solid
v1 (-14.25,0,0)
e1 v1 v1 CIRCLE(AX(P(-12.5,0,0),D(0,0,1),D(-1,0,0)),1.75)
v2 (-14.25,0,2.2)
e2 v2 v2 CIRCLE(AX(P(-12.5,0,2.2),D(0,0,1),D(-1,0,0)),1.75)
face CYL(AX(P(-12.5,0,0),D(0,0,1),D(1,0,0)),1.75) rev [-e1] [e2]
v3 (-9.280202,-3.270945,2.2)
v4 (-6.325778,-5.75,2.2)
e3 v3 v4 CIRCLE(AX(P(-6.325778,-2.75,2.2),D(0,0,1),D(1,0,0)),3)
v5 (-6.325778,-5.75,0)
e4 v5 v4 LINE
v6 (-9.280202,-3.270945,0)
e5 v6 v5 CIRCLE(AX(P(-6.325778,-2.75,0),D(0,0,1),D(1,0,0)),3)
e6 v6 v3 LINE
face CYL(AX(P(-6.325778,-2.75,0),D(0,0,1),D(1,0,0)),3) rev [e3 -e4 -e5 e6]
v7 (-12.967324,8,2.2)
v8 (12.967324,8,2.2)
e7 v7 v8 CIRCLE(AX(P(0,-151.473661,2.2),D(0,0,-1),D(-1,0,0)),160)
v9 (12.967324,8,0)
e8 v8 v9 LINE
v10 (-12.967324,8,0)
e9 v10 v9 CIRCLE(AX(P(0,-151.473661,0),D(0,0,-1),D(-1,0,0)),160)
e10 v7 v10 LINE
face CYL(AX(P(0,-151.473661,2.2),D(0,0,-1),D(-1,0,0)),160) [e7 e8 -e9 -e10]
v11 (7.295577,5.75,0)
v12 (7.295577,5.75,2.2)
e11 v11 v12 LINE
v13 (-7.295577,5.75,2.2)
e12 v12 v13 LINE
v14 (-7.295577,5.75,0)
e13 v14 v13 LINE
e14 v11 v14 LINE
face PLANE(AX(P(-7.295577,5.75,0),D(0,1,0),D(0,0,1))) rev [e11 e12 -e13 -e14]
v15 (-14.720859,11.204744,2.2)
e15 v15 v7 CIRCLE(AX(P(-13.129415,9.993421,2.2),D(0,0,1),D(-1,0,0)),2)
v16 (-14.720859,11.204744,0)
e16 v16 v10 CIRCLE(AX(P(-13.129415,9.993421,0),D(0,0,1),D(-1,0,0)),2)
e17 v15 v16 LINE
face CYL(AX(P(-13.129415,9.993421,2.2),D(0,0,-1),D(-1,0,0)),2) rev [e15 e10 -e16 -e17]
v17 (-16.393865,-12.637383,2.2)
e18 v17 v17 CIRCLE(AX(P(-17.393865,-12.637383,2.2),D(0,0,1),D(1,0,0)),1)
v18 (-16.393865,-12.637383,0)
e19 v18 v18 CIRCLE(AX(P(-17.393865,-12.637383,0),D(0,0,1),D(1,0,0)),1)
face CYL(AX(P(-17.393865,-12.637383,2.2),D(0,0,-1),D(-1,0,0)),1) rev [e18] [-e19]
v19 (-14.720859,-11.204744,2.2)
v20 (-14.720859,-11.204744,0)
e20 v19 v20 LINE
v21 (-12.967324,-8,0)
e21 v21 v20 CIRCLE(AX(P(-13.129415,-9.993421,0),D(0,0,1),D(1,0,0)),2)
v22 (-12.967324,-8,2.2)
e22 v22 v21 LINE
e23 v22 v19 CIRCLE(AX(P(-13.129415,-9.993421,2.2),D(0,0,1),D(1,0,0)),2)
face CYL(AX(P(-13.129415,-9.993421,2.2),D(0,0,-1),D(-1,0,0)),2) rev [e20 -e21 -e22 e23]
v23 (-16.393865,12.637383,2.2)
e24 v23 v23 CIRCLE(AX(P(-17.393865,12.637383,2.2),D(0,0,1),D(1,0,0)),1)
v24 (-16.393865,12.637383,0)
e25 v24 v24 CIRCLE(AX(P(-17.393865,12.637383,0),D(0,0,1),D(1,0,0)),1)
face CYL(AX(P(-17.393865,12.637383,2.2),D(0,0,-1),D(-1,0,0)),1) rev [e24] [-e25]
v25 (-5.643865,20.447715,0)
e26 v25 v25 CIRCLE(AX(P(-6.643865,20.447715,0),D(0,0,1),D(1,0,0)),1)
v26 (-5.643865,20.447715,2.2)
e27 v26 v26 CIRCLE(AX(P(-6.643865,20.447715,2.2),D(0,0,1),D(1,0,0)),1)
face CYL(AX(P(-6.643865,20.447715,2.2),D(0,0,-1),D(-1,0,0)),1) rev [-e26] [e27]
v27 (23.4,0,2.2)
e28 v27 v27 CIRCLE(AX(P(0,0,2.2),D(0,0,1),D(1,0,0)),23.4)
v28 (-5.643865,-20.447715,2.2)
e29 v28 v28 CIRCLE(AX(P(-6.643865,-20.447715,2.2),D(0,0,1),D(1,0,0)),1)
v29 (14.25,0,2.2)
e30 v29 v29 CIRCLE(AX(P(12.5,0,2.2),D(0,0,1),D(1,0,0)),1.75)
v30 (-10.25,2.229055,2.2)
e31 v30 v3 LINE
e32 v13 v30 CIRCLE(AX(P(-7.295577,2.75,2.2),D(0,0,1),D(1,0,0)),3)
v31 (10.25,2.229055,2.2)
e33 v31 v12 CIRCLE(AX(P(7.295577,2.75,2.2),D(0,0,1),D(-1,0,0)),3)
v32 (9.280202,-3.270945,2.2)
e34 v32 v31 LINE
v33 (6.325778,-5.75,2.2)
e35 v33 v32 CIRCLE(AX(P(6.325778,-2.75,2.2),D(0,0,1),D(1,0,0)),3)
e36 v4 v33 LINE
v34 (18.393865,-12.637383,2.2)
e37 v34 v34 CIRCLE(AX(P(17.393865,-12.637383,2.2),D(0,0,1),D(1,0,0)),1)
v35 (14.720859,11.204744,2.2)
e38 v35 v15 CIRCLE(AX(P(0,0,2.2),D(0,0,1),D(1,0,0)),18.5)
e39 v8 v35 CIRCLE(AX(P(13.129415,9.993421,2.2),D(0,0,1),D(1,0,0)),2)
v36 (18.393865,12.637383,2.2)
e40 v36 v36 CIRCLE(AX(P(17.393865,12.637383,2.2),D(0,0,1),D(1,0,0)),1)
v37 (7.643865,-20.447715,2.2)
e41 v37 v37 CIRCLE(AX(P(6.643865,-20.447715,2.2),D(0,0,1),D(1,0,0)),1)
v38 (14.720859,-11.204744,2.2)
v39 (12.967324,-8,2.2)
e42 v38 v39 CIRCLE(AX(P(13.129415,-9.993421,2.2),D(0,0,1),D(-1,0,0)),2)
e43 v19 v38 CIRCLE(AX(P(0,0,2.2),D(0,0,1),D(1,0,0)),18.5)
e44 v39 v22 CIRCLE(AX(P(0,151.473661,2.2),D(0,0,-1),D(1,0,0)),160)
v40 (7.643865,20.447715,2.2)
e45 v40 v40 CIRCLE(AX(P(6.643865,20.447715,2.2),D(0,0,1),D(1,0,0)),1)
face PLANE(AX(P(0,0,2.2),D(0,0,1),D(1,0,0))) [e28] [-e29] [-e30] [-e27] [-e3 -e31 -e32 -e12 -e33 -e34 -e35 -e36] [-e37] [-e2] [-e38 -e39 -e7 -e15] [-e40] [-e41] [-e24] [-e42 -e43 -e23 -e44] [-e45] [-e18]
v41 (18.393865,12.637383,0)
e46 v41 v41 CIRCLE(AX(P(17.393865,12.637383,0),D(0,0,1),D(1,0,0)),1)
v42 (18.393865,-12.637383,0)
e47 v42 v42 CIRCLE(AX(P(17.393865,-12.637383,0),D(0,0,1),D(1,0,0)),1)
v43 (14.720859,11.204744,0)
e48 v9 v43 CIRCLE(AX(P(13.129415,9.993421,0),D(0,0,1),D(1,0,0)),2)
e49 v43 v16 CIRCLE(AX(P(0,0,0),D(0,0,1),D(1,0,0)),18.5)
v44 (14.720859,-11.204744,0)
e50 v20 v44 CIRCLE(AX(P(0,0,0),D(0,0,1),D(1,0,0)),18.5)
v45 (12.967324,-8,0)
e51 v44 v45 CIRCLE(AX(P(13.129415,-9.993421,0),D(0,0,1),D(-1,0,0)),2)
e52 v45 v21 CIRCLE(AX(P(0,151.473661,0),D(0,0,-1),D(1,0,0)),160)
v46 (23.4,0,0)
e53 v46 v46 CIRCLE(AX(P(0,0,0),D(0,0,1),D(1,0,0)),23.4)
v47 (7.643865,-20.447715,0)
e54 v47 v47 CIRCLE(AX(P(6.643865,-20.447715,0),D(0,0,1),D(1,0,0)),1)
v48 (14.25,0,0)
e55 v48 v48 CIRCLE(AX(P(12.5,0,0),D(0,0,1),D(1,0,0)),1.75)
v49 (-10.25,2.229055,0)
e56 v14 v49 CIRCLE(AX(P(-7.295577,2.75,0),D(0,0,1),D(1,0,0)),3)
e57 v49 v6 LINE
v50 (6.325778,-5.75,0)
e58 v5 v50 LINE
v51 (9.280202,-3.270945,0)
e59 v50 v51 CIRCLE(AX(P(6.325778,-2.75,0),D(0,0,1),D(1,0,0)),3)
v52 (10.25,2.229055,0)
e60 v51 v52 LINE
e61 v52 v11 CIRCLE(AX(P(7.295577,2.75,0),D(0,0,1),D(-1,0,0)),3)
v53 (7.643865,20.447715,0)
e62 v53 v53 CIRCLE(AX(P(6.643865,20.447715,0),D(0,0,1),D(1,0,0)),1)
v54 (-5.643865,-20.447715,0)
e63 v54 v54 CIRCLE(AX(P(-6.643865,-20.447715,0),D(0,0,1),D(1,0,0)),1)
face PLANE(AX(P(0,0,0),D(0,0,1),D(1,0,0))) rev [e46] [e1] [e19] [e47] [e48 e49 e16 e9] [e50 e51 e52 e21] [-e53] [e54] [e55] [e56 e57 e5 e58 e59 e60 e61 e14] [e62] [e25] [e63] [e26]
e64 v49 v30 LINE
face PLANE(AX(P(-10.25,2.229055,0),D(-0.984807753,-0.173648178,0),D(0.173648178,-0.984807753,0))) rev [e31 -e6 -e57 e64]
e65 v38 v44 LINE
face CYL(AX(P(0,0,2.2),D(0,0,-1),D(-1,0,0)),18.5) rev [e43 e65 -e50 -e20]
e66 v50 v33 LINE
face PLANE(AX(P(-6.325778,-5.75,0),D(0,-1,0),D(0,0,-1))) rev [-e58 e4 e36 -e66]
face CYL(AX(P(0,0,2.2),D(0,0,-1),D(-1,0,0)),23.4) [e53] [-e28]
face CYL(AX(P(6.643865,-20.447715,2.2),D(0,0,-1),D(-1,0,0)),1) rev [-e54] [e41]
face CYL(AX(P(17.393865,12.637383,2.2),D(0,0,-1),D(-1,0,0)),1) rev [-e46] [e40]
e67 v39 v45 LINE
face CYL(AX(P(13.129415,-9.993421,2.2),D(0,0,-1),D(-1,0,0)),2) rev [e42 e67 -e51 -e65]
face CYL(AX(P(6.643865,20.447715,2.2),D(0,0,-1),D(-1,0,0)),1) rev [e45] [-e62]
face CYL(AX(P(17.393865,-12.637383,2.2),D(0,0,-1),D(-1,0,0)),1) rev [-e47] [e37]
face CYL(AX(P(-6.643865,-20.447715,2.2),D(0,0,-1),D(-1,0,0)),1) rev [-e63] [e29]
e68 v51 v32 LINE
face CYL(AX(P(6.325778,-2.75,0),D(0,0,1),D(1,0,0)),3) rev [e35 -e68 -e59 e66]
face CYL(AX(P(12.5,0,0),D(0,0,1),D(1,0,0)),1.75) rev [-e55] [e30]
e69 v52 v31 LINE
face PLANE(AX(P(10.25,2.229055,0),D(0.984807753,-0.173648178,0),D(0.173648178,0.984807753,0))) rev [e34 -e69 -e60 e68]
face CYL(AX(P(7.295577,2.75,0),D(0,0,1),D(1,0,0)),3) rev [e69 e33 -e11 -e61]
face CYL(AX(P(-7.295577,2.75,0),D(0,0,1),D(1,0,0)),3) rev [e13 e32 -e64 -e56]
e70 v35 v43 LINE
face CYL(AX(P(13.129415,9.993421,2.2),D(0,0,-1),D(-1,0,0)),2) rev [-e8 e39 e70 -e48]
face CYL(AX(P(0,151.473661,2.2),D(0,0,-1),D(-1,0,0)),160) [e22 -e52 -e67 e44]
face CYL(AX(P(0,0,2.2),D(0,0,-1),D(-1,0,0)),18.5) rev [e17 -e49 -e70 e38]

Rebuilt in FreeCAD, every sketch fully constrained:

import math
import FreeCAD as App
import Part
import Sketcher

V = App.Vector
Q = App.Units.Quantity

doc = App.newDocument("Part")
body = doc.addObject("PartDesign::Body", "Body")

# Sketch on XY plane
sketch1 = doc.addObject("Sketcher::SketchObject", "Sketch")
body.addObject(sketch1)
sketch1.AttachmentSupport = (doc.XY_Plane, [""])
sketch1.MapMode = "FlatFace"
sketch1.addGeometry([
    Part.Circle(V(0, 0, 0), V(0, 0, 1), 23.4),  # 0
    Part.Circle(V(-17.4, -12.6, 0), V(0, 0, 1), 1),  # 1
    Part.Circle(V(-6.6, -20.4, 0), V(0, 0, 1), 1),  # 2
    Part.Circle(V(6.6, -20.4, 0), V(0, 0, 1), 1),  # 3
    Part.ArcOfCircle(Part.Circle(V(0, 0, 0), V(0, 0, 1), 18.5), math.radians(-143), math.radians(-37)),  # 4
    Part.ArcOfCircle(Part.Circle(V(-13.1, -10, 0), V(0, 0, 1), 2), math.radians(85), math.radians(217)),  # 5
    Part.ArcOfCircle(Part.Circle(V(0, 151.5, 0), V(0, 0, 1), 160), math.radians(-94.65), math.radians(-85.35)),  # 6
    Part.ArcOfCircle(Part.Circle(V(13.1, -10, 0), V(0, 0, 1), 2), math.radians(-37), math.radians(95)),  # 7
    Part.Circle(V(17.4, -12.6, 0), V(0, 0, 1), 1),  # 8
    Part.Circle(V(-17.4, 12.6, 0), V(0, 0, 1), 1),  # 9
    Part.Circle(V(-6.6, 20.4, 0), V(0, 0, 1), 1),  # 10
    Part.ArcOfCircle(Part.Circle(V(0, 0, 0), V(0, 0, 1), 18.5), math.radians(37), math.radians(143)),  # 11
    Part.ArcOfCircle(Part.Circle(V(13.1, 10, 0), V(0, 0, 1), 2), math.radians(-95), math.radians(37)),  # 12
    Part.ArcOfCircle(Part.Circle(V(0, -151.5, 0), V(0, 0, 1), 160), math.radians(85.35), math.radians(94.65)),  # 13
    Part.ArcOfCircle(Part.Circle(V(-13.1, 10, 0), V(0, 0, 1), 2), math.radians(143), math.radians(275)),  # 14
    Part.Circle(V(6.6, 20.4, 0), V(0, 0, 1), 1),  # 15
    Part.Circle(V(17.4, 12.6, 0), V(0, 0, 1), 1),  # 16
], False)
sketch1.addConstraint([
    Sketcher.Constraint("Tangent", 4, 1, 5, 2),
    Sketcher.Constraint("Tangent", 5, 1, 6, 1),
    Sketcher.Constraint("Tangent", 6, 2, 7, 2),
    Sketcher.Constraint("Tangent", 7, 1, 4, 2),
    Sketcher.Constraint("Tangent", 11, 1, 12, 2),
    Sketcher.Constraint("Tangent", 12, 1, 13, 1),
    Sketcher.Constraint("Tangent", 13, 2, 14, 2),
    Sketcher.Constraint("Tangent", 14, 1, 11, 2),
    Sketcher.Constraint("Coincident", 0, 3, -1, 1),
    Sketcher.Constraint("Coincident", 4, 3, -1, 1),
    Sketcher.Constraint("Coincident", 11, 3, -1, 1),
    Sketcher.Constraint("Equal", 1, 2),
    Sketcher.Constraint("Equal", 2, 3),
    Sketcher.Constraint("Equal", 5, 7),
    Sketcher.Constraint("Equal", 3, 8),
    Sketcher.Constraint("Equal", 8, 9),
    Sketcher.Constraint("Equal", 9, 10),
    Sketcher.Constraint("Equal", 4, 11),
    Sketcher.Constraint("Equal", 7, 12),
    Sketcher.Constraint("Equal", 6, 13),
    Sketcher.Constraint("Equal", 12, 14),
    Sketcher.Constraint("Equal", 10, 15),
    Sketcher.Constraint("Equal", 15, 16),
    Sketcher.Constraint("Symmetric", 8, 3, 9, 3, -1, 1),
    Sketcher.Constraint("Symmetric", 3, 3, 10, 3, -1, 1),
    Sketcher.Constraint("Symmetric", 6, 3, 13, 3, -1, 1),
    Sketcher.Constraint("Symmetric", 2, 3, 15, 3, -1, 1),
    Sketcher.Constraint("Symmetric", 1, 3, 16, 3, -1, 1),
    Sketcher.Constraint("Symmetric", 2, 3, 3, 3, -2),
    Sketcher.Constraint("Symmetric", 1, 3, 8, 3, -2),
    Sketcher.Constraint("PointOnObject", 6, 3, -2),
    Sketcher.Constraint("Diameter", 1, Q("2 mm")),
    Sketcher.Constraint("Radius", 5, Q("2 mm")),
    Sketcher.Constraint("Radius", 6, Q("160 mm")),
    Sketcher.Constraint("Diameter", 0, Q("46.8 mm")),
    Sketcher.Constraint("Radius", 4, Q("18.5 mm")),
    Sketcher.Constraint("DistanceY", 5, 1, -1, 1, Q("8 mm")),
    Sketcher.Constraint("DistanceX", 1, 3, 2, 3, Q("10.75 mm")),
    Sketcher.Constraint("DistanceY", 2, 3, 9, 3, Q("33.085098 mm")),
    Sketcher.Constraint("DistanceX", 2, 3, 3, 3, Q("13.287731 mm")),
    Sketcher.Constraint("DistanceY", 13, 3, 1, 3, Q("138.836278 mm")),
])
pad1 = doc.addObject("PartDesign::Pad", "Pad")
body.addObject(pad1)
pad1.Profile = sketch1
pad1.Length = 2.2

# Sketch on XY plane
sketch2 = doc.addObject("Sketcher::SketchObject", "Sketch001")
body.addObject(sketch2)
sketch2.AttachmentSupport = (doc.XY_Plane, [""])
sketch2.MapMode = "FlatFace"
sketch2.AttachmentOffset = App.Placement(V(0, 0, 2.2), App.Rotation())
sketch2.addGeometry([
    Part.Circle(V(12.5, 0, 0), V(0, 0, 1), 1.8),  # 0
    Part.Circle(V(-12.5, 0, 0), V(0, 0, 1), 1.8),  # 1
    Part.LineSegment(V(7.3, 5.8, 0), V(-7.3, 5.8, 0)),  # 2
    Part.ArcOfCircle(Part.Circle(V(-7.3, 2.7, 0), V(0, 0, 1), 3), math.radians(90), math.radians(190)),  # 3
    Part.LineSegment(V(-10.2, 2.2, 0), V(-9.3, -3.3, 0)),  # 4
    Part.ArcOfCircle(Part.Circle(V(-6.3, -2.7, 0), V(0, 0, 1), 3), math.radians(-170), math.radians(-90)),  # 5
    Part.LineSegment(V(-6.3, -5.8, 0), V(6.3, -5.8, 0)),  # 6
    Part.ArcOfCircle(Part.Circle(V(6.3, -2.7, 0), V(0, 0, 1), 3), math.radians(-90), math.radians(-10)),  # 7
    Part.LineSegment(V(9.3, -3.3, 0), V(10.2, 2.2, 0)),  # 8
    Part.ArcOfCircle(Part.Circle(V(7.3, 2.7, 0), V(0, 0, 1), 3), math.radians(-10), math.radians(90)),  # 9
], False)
sketch2.addConstraint([
    Sketcher.Constraint("Tangent", 2, 2, 3, 1),
    Sketcher.Constraint("Tangent", 3, 2, 4, 1),
    Sketcher.Constraint("Tangent", 4, 2, 5, 1),
    Sketcher.Constraint("Tangent", 5, 2, 6, 1),
    Sketcher.Constraint("Tangent", 6, 2, 7, 1),
    Sketcher.Constraint("Tangent", 7, 2, 8, 1),
    Sketcher.Constraint("Tangent", 8, 2, 9, 1),
    Sketcher.Constraint("Tangent", 9, 2, 2, 1),
    Sketcher.Constraint("Horizontal", 2),
    Sketcher.Constraint("Horizontal", 6),
    Sketcher.Constraint("Equal", 0, 1),
    Sketcher.Constraint("Equal", 3, 5),
    Sketcher.Constraint("Equal", 5, 7),
    Sketcher.Constraint("Equal", 7, 9),
    Sketcher.Constraint("Symmetric", 0, 3, 1, 3, -1, 1),
    Sketcher.Constraint("Symmetric", 4, 2, 7, 2, -2),
    Sketcher.Constraint("PointOnObject", 0, 3, -1),
    Sketcher.Constraint("Radius", 3, Q("3 mm")),
    Sketcher.Constraint("Diameter", 0, Q("3.5 mm")),
    Sketcher.Constraint("Angle", 4, Q("-80 deg")),
    Sketcher.Constraint("DistanceX", 1, 3, 0, 3, Q("25 mm")),
    Sketcher.Constraint("DistanceY", 5, 3, 3, 3, Q("5.5 mm")),
    Sketcher.Constraint("DistanceY", -1, 1, 3, 3, Q("2.75 mm")),
    Sketcher.Constraint("DistanceX", 3, 2, -1, 1, Q("10.25 mm")),
])
pocket1 = doc.addObject("PartDesign::Pocket", "Pocket")
body.addObject(pocket1)
pocket1.Profile = sketch2
pocket1.Type = "ThroughAll"

doc.recompute()
